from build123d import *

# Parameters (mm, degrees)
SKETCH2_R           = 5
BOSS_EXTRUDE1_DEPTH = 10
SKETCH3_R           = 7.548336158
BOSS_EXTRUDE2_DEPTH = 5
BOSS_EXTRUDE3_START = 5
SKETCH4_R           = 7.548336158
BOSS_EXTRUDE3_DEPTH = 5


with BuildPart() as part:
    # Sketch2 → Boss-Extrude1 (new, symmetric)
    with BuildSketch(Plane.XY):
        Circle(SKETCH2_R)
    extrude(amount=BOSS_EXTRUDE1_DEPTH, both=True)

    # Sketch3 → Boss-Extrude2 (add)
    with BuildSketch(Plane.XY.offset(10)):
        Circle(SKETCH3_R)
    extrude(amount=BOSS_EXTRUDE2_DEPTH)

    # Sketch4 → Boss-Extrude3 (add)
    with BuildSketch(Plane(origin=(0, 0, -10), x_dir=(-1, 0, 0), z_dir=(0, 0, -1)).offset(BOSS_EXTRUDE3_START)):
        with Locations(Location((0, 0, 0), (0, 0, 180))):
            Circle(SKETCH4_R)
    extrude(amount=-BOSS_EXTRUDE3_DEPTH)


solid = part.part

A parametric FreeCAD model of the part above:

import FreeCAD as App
import Part
import Sketcher
from FreeCAD import Vector

doc = App.newDocument("Part")
body = doc.addObject("PartDesign::Body", "Body")

sketch1 = doc.addObject("Sketcher::SketchObject", "Sketch")
body.addObject(sketch1)
sketch1.AttachmentSupport = (doc.XY_Plane, [""])
sketch1.MapMode = "FlatFace"
sketch1.addGeometry(Part.Circle(Vector(0, 0, 0), Vector(0, 0, 1), 5), False)
sketch1.addConstraint(Sketcher.Constraint("Coincident", 0, 3, -1, 1))
sketch1.addConstraint(Sketcher.Constraint("Diameter", 0, 10.0))
pad1 = doc.addObject("PartDesign::Pad", "Pad")
body.addObject(pad1)
pad1.Profile = sketch1
pad1.Length = 20
pad1.Midplane = True

sketch2 = doc.addObject("Sketcher::SketchObject", "Sketch001")
body.addObject(sketch2)
sketch2.AttachmentSupport = (doc.XY_Plane, [""])
sketch2.MapMode = "FlatFace"
sketch2.AttachmentOffset = App.Placement(Vector(0, 0, 10), App.Rotation())
sketch2.addGeometry(Part.Circle(Vector(0, 0, 0), Vector(0, 0, 1), 8), False)
sketch2.addConstraint(Sketcher.Constraint("Coincident", 0, 3, -1, 1))
sketch2.addConstraint(Sketcher.Constraint("Diameter", 0, 15.096672))
pad2 = doc.addObject("PartDesign::Pad", "Pad001")
body.addObject(pad2)
pad2.Profile = sketch2
pad2.Length = 5

sketch3 = doc.addObject("Sketcher::SketchObject", "Sketch002")
body.addObject(sketch3)
sketch3.AttachmentSupport = (doc.XY_Plane, [""])
sketch3.MapMode = "FlatFace"
sketch3.AttachmentOffset = App.Placement(Vector(0, 0, -15), App.Rotation())
sketch3.addGeometry(Part.Circle(Vector(0, 0, 0), Vector(0, 0, 1), 8), False)
sketch3.addConstraint(Sketcher.Constraint("Coincident", 0, 3, -1, 1))
sketch3.addConstraint(Sketcher.Constraint("Diameter", 0, 15.096672))
pad3 = doc.addObject("PartDesign::Pad", "Pad002")
body.addObject(pad3)
pad3.Profile = sketch3
pad3.Length = 5

doc.recompute()
